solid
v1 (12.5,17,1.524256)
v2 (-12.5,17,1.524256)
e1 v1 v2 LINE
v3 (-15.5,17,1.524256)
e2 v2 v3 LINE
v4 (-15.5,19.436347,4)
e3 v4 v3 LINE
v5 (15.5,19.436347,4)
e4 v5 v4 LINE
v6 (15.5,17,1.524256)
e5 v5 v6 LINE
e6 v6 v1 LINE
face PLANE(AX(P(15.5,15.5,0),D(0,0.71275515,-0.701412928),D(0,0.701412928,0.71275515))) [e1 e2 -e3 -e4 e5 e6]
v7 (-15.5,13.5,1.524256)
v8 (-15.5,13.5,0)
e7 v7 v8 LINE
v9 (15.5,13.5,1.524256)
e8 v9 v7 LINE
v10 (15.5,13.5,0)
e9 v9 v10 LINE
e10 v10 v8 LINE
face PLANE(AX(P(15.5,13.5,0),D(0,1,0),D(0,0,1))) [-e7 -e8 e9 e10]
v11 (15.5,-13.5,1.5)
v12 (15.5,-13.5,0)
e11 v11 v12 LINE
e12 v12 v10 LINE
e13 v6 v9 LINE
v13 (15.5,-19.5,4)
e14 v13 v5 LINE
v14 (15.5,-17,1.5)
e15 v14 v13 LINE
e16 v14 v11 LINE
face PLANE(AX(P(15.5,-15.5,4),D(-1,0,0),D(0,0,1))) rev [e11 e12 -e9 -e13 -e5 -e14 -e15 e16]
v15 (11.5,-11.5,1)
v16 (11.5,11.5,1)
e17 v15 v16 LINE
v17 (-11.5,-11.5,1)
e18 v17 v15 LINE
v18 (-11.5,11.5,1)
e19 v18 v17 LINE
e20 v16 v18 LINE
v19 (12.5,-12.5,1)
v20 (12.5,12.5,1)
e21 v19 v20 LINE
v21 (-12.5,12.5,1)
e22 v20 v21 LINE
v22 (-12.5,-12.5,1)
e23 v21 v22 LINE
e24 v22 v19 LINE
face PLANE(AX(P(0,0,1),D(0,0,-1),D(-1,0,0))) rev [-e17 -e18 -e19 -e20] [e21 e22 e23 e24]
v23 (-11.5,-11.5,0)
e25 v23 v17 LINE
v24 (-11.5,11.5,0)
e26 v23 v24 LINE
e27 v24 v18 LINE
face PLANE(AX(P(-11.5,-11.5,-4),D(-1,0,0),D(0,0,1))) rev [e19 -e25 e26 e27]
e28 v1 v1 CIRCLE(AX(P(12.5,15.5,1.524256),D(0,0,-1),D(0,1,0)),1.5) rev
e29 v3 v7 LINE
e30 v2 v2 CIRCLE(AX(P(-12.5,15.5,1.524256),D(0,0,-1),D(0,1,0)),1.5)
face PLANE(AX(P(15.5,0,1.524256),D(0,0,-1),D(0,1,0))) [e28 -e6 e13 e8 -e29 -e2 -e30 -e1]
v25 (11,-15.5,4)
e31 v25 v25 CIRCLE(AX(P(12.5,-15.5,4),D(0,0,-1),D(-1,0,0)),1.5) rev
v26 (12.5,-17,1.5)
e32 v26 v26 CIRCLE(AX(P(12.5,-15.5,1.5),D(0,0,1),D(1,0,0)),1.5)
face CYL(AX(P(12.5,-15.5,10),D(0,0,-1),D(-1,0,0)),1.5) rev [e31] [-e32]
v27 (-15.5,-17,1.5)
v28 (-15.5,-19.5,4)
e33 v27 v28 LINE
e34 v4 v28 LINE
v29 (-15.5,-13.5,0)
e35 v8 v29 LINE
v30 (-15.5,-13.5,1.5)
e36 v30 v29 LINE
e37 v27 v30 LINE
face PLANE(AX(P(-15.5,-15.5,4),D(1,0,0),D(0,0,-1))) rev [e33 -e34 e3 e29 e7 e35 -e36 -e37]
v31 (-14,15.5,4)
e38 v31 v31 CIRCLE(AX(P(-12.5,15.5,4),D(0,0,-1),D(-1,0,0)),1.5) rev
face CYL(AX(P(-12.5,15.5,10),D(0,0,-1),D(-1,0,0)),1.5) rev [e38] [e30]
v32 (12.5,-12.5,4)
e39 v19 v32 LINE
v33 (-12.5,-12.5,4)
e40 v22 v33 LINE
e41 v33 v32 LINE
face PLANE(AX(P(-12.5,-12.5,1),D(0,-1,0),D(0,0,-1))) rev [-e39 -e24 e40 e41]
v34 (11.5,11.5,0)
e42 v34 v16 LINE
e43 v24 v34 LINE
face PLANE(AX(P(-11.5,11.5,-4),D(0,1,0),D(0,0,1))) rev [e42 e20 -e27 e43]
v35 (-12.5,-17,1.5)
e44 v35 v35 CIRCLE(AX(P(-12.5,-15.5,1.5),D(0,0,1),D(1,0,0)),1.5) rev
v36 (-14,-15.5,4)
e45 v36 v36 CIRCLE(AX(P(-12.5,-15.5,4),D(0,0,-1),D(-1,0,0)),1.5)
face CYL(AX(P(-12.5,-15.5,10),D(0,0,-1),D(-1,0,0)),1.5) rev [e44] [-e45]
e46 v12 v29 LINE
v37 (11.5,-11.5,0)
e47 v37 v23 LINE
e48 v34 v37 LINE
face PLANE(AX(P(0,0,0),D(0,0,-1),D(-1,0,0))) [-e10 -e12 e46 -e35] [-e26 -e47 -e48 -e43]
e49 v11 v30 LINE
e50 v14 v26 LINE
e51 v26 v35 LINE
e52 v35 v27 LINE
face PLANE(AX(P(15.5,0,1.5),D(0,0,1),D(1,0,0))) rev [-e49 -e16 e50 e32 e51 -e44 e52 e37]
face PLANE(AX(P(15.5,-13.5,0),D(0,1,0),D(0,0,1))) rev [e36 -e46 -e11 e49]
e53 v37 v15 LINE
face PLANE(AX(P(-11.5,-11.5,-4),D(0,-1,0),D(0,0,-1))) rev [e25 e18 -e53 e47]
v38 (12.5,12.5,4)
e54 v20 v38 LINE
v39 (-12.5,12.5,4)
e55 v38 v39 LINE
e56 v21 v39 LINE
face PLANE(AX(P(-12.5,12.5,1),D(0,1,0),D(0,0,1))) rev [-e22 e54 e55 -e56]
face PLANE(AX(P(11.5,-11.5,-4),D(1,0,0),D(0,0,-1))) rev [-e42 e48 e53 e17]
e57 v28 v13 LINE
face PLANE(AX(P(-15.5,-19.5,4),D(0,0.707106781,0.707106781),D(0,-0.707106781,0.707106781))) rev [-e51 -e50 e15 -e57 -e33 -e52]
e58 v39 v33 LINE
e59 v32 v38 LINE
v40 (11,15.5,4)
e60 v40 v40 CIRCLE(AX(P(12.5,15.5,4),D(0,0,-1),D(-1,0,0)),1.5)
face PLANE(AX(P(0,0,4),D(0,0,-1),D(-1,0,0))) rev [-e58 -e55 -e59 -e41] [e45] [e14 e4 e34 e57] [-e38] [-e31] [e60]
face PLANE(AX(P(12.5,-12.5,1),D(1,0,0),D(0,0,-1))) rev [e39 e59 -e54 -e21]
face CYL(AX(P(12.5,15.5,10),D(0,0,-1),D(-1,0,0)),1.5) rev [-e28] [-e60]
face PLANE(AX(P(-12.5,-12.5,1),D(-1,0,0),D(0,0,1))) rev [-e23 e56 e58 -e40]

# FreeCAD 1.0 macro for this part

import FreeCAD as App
import Part
import Sketcher
Q = App.Units.Quantity

doc = App.newDocument("Part")
body = doc.addObject("PartDesign::Body", "Body")

sketch1 = body.newObject("Sketcher::SketchObject", "Sketch")
sketch1.AttachmentSupport = (doc.getObject("XY_Plane"), [""])
sketch1.MapMode = "FlatFace"
sketch1.addGeometry(Part.LineSegment(App.Vector(-16, 16, 0), App.Vector(-16, -16, 0)), False)
sketch1.addGeometry(Part.LineSegment(App.Vector(-16, -16, 0), App.Vector(16, -16, 0)), False)
sketch1.addGeometry(Part.LineSegment(App.Vector(16, -16, 0), App.Vector(16, 16, 0)), False)
sketch1.addGeometry(Part.LineSegment(App.Vector(16, 16, 0), App.Vector(-16, 16, 0)), False)
sketch1.addConstraint(Sketcher.Constraint("Coincident", 0, 2, 1, 1))
sketch1.addConstraint(Sketcher.Constraint("Coincident", 1, 2, 2, 1))
sketch1.addConstraint(Sketcher.Constraint("Coincident", 2, 2, 3, 1))
sketch1.addConstraint(Sketcher.Constraint("Coincident", 3, 2, 0, 1))
sketch1.addConstraint(Sketcher.Constraint("Vertical", 0))
sketch1.addConstraint(Sketcher.Constraint("Horizontal", 1))
sketch1.addConstraint(Sketcher.Constraint("Vertical", 2))
sketch1.addConstraint(Sketcher.Constraint("Horizontal", 3))
sketch1.addConstraint(Sketcher.Constraint("Symmetric", 0, 2, 2, 2, -1, 1))
sketch1.addConstraint(Sketcher.Constraint("Equal", 3, 0))
sketch1.addConstraint(Sketcher.Constraint("DistanceX", 1, 1, 1, 2, Q("31 mm")))
pad1 = body.newObject("PartDesign::Pad", "Pad")
pad1.Profile = sketch1
pad1.Length = 4

sketch2 = body.newObject("Sketcher::SketchObject", "Sketch001")
sketch2.AttachmentSupport = (doc.getObject("XY_Plane"), [""])
sketch2.MapMode = "FlatFace"
sketch2.AttachmentOffset = App.Placement(App.Vector(0, 0, 4), App.Rotation())
sketch2.addGeometry(Part.LineSegment(App.Vector(-12, 12, 0), App.Vector(-12, -12, 0)), False)
sketch2.addGeometry(Part.LineSegment(App.Vector(-12, -12, 0), App.Vector(12, -12, 0)), False)
sketch2.addGeometry(Part.LineSegment(App.Vector(12, -12, 0), App.Vector(12, 12, 0)), False)
sketch2.addGeometry(Part.LineSegment(App.Vector(12, 12, 0), App.Vector(-12, 12, 0)), False)
sketch2.addConstraint(Sketcher.Constraint("Coincident", 0, 2, 1, 1))
sketch2.addConstraint(Sketcher.Constraint("Coincident", 1, 2, 2, 1))
sketch2.addConstraint(Sketcher.Constraint("Coincident", 2, 2, 3, 1))
sketch2.addConstraint(Sketcher.Constraint("Coincident", 3, 2, 0, 1))
sketch2.addConstraint(Sketcher.Constraint("Vertical", 0))
sketch2.addConstraint(Sketcher.Constraint("Horizontal", 1))
sketch2.addConstraint(Sketcher.Constraint("Vertical", 2))
sketch2.addConstraint(Sketcher.Constraint("Horizontal", 3))
sketch2.addConstraint(Sketcher.Constraint("Symmetric", 0, 2, 2, 2, -1, 1))
sketch2.addConstraint(Sketcher.Constraint("Equal", 3, 0))
sketch2.addConstraint(Sketcher.Constraint("DistanceX", 1, 1, 1, 2, Q("25 mm")))
pocket1 = body.newObject("PartDesign::Pocket", "Pocket")
pocket1.Profile = sketch2
pocket1.Length = 3

sketch3 = body.newObject("Sketcher::SketchObject", "Sketch002")
sketch3.AttachmentSupport = (doc.getObject("XY_Plane"), [""])
sketch3.MapMode = "FlatFace"
sketch3.AttachmentOffset = App.Placement(App.Vector(0, 0, 1), App.Rotation())
sketch3.addGeometry(Part.LineSegment(App.Vector(-12, 12, 0), App.Vector(-12, -12, 0)), False)
sketch3.addGeometry(Part.LineSegment(App.Vector(-12, -12, 0), App.Vector(12, -12, 0)), False)
sketch3.addGeometry(Part.LineSegment(App.Vector(12, -12, 0), App.Vector(12, 12, 0)), False)
sketch3.addGeometry(Part.LineSegment(App.Vector(12, 12, 0), App.Vector(-12, 12, 0)), False)
sketch3.addConstraint(Sketcher.Constraint("Coincident", 0, 2, 1, 1))
sketch3.addConstraint(Sketcher.Constraint("Coincident", 1, 2, 2, 1))
sketch3.addConstraint(Sketcher.Constraint("Coincident", 2, 2, 3, 1))
sketch3.addConstraint(Sketcher.Constraint("Coincident", 3, 2, 0, 1))
sketch3.addConstraint(Sketcher.Constraint("Vertical", 0))
sketch3.addConstraint(Sketcher.Constraint("Horizontal", 1))
sketch3.addConstraint(Sketcher.Constraint("Vertical", 2))
sketch3.addConstraint(Sketcher.Constraint("Horizontal", 3))
sketch3.addConstraint(Sketcher.Constraint("Symmetric", 0, 2, 2, 2, -1, 1))
sketch3.addConstraint(Sketcher.Constraint("Equal", 3, 0))
sketch3.addConstraint(Sketcher.Constraint("DistanceX", 1, 1, 1, 2, Q("23 mm")))
pocket2 = body.newObject("PartDesign::Pocket", "Pocket001")
pocket2.Profile = sketch3
pocket2.Length = 5

sketch4 = body.newObject("Sketcher::SketchObject", "Sketch003")
sketch4.AttachmentSupport = (doc.getObject("YZ_Plane"), [""])
sketch4.MapMode = "FlatFace"
sketch4.AttachmentOffset = App.Placement(App.Vector(0, 0, -15.5), App.Rotation())
sketch4.addGeometry(Part.LineSegment(App.Vector(-19.5, 4, 0), App.Vector(-15.5, 4, 0)), False)
sketch4.addGeometry(Part.LineSegment(App.Vector(-15.5, 4, 0), App.Vector(-15.5, 0, 0)), False)
sketch4.addGeometry(Part.LineSegment(App.Vector(-15.5, 0, 0), App.Vector(-19.5, 4, 0)), False)
sketch4.addConstraint(Sketcher.Constraint("Coincident", 0, 2, 1, 1))
sketch4.addConstraint(Sketcher.Constraint("Coincident", 1, 2, 2, 1))
sketch4.addConstraint(Sketcher.Constraint("Coincident", 2, 2, 0, 1))
sketch4.addConstraint(Sketcher.Constraint("Horizontal", 0))
sketch4.addConstraint(Sketcher.Constraint("Vertical", 1))
sketch4.addConstraint(Sketcher.Constraint("PointOnObject", 1, 2, -1))
sketch4.addConstraint(Sketcher.Constraint("Equal", 0, 1))
sketch4.addConstraint(Sketcher.Constraint("DistanceX", 0, 1, 0, 2, Q("4 mm")))
sketch4.addConstraint(Sketcher.Constraint("DistanceX", 0, 2, -1, 1, Q("15.5 mm")))

sketch5 = body.newObject("Sketcher::SketchObject", "Sketch004")
sketch5.AttachmentSupport = (doc.getObject("XY_Plane"), [""])
sketch5.MapMode = "FlatFace"
sketch5.AttachmentOffset = App.Placement(App.Vector(0, 0, 4), App.Rotation())
sketch5.addGeometry(Part.LineSegment(App.Vector(-16, -16, 0), App.Vector(16, -16, 0)), False)
sketch5.addConstraint(Sketcher.Constraint("Horizontal", 0))
sketch5.addConstraint(Sketcher.Constraint("DistanceX", 0, 1, 0, 2, Q("31 mm")))
sketch5.addConstraint(Sketcher.Constraint("DistanceX", 0, 1, -1, 1, Q("15.5 mm")))
sketch5.addConstraint(Sketcher.Constraint("DistanceY", 0, 1, -1, 1, Q("15.5 mm")))
doc.recompute()

additivepipe = body.newObject("PartDesign::AdditivePipe", "AdditivePipe")
additivepipe.Profile = sketch4
additivepipe.Spine = (sketch5, ["Edge1"])

sketch6 = body.newObject("Sketcher::SketchObject", "Sketch005")
sketch6.AttachmentSupport = (doc.getObject("YZ_Plane"), [""])
sketch6.MapMode = "FlatFace"
sketch6.AttachmentOffset = App.Placement(App.Vector(0, 0, -15.5), App.Rotation())
sketch6.addGeometry(Part.LineSegment(App.Vector(19.4, 4, 0), App.Vector(15.5, 0, 0)), False)
sketch6.addGeometry(Part.LineSegment(App.Vector(15.5, 0, 0), App.Vector(15.5, 4, 0)), False)
sketch6.addGeometry(Part.LineSegment(App.Vector(15.5, 4, 0), App.Vector(19.4, 4, 0)), False)
sketch6.addConstraint(Sketcher.Constraint("Coincident", 0, 2, 1, 1))
sketch6.addConstraint(Sketcher.Constraint("Coincident", 1, 2, 2, 1))
sketch6.addConstraint(Sketcher.Constraint("Coincident", 2, 2, 0, 1))
sketch6.addConstraint(Sketcher.Constraint("Vertical", 1))
sketch6.addConstraint(Sketcher.Constraint("Horizontal", 2))
sketch6.addConstraint(Sketcher.Constraint("PointOnObject", 0, 2, -1))
sketch6.addConstraint(Sketcher.Constraint("DistanceY", 1, 1, 1, 2, Q("4 mm")))
sketch6.addConstraint(Sketcher.Constraint("DistanceX", -1, 1, 0, 2, Q("15.5 mm")))
sketch6.addConstraint(Sketcher.Constraint("DistanceX", 2, 1, 2, 2, Q("3.936347 mm")))

sketch7 = body.newObject("Sketcher::SketchObject", "Sketch006")
sketch7.AttachmentSupport = (doc.getObject("XY_Plane"), [""])
sketch7.MapMode = "FlatFace"
sketch7.addGeometry(Part.LineSegment(App.Vector(16, 16, 0), App.Vector(-16, 16, 0)), False)
sketch7.addConstraint(Sketcher.Constraint("Horizontal", 0))
sketch7.addConstraint(Sketcher.Constraint("DistanceX", 0, 2, 0, 1, Q("31 mm")))
sketch7.addConstraint(Sketcher.Constraint("DistanceX", -1, 1, 0, 1, Q("15.5 mm")))
sketch7.addConstraint(Sketcher.Constraint("DistanceY", -1, 1, 0, 1, Q("15.5 mm")))
doc.recompute()

additivepipe2 = body.newObject("PartDesign::AdditivePipe", "AdditivePipe001")
additivepipe2.Profile = sketch6
additivepipe2.Spine = (sketch7, ["Edge1"])

sketch8 = body.newObject("Sketcher::SketchObject", "Sketch007")
sketch8.AttachmentSupport = (doc.getObject("XY_Plane"), [""])
sketch8.MapMode = "FlatFace"
sketch8.addGeometry(Part.Circle(App.Vector(12.5, 15.5, 0), App.Vector(0, 0, 1), 1.5), False)
sketch8.addConstraint(Sketcher.Constraint("Diameter", 0, Q("3 mm")))
sketch8.addConstraint(Sketcher.Constraint("DistanceX", -1, 1, 0, 3, Q("12.5 mm")))
sketch8.addConstraint(Sketcher.Constraint("DistanceY", -1, 1, 0, 3, Q("15.5 mm")))
pocket3 = body.newObject("PartDesign::Pocket", "Pocket002")
pocket3.Profile = sketch8
pocket3.Length = 10
pocket3.Reversed = True
doc.recompute()

mirrored = body.newObject("PartDesign::Mirrored", "Mirrored")
mirrored.Originals = [pocket3]
mirrored.MirrorPlane = (doc.getObject("YZ_Plane"), [""])
body.Tip = mirrored
doc.recompute()

mirrored2 = body.newObject("PartDesign::Mirrored", "Mirrored001")
mirrored2.Originals = [pocket3]
mirrored2.MirrorPlane = (doc.getObject("XZ_Plane"), [""])
body.Tip = mirrored2

sketch9 = body.newObject("Sketcher::SketchObject", "Sketch008")
sketch9.AttachmentSupport = (doc.getObject("XY_Plane"), [""])
sketch9.MapMode = "FlatFace"
sketch9.addGeometry(Part.Circle(App.Vector(-12.5, -15.5, 0), App.Vector(0, 0, 1), 1.5), False)
sketch9.addConstraint(Sketcher.Constraint("Diameter", 0, Q("3 mm")))
sketch9.addConstraint(Sketcher.Constraint("DistanceX", 0, 3, -1, 1, Q("12.5 mm")))
sketch9.addConstraint(Sketcher.Constraint("DistanceY", 0, 3, -1, 1, Q("15.5 mm")))
pocket4 = body.newObject("PartDesign::Pocket", "Pocket003")
pocket4.Profile = sketch9
pocket4.Length = 10
pocket4.Reversed = True

sketch10 = body.newObject("Sketcher::SketchObject", "Sketch009")
sketch10.AttachmentSupport = (doc.getObject("YZ_Plane"), [""])
sketch10.MapMode = "FlatFace"
sketch10.AttachmentOffset = App.Placement(App.Vector(0, 0, -15.5), App.Rotation())
sketch10.addGeometry(Part.LineSegment(App.Vector(-15.5, 0, 0), App.Vector(-17, 1.5, 0)), False)
sketch10.addGeometry(Part.LineSegment(App.Vector(-17, 1.5, 0), App.Vector(-13.5, 1.5, 0)), False)
sketch10.addGeometry(Part.LineSegment(App.Vector(-13.5, 1.5, 0), App.Vector(-13.5, 0, 0)), False)
sketch10.addGeometry(Part.LineSegment(App.Vector(-13.5, 0, 0), App.Vector(-15.5, 0, 0)), False)
sketch10.addGeometry(Part.LineSegment(App.Vector(17, 1.5, 0), App.Vector(15.5, 0, 0)), False)
sketch10.addGeometry(Part.LineSegment(App.Vector(15.5, 0, 0), App.Vector(13.5, 0, 0)), False)
sketch10.addGeometry(Part.LineSegment(App.Vector(13.5, 0, 0), App.Vector(13.5, 1.5, 0)), False)
sketch10.addGeometry(Part.LineSegment(App.Vector(13.5, 1.5, 0), App.Vector(17, 1.5, 0)), False)
sketch10.addConstraint(Sketcher.Constraint("Coincident", 0, 2, 1, 1))
sketch10.addConstraint(Sketcher.Constraint("Coincident", 1, 2, 2, 1))
sketch10.addConstraint(Sketcher.Constraint("Coincident", 2, 2, 3, 1))
sketch10.addConstraint(Sketcher.Constraint("Coincident", 3, 2, 0, 1))
sketch10.addConstraint(Sketcher.Constraint("Coincident", 4, 2, 5, 1))
sketch10.addConstraint(Sketcher.Constraint("Coincident", 5, 2, 6, 1))
sketch10.addConstraint(Sketcher.Constraint("Coincident", 6, 2, 7, 1))
sketch10.addConstraint(Sketcher.Constraint("Coincident", 7, 2, 4, 1))
sketch10.addConstraint(Sketcher.Constraint("Horizontal", 1))
sketch10.addConstraint(Sketcher.Constraint("Vertical", 2))
sketch10.addConstraint(Sketcher.Constraint("Horizontal", 3))
sketch10.addConstraint(Sketcher.Constraint("Horizontal", 5))
sketch10.addConstraint(Sketcher.Constraint("Vertical", 6))
sketch10.addConstraint(Sketcher.Constraint("Horizontal", 7))
sketch10.addConstraint(Sketcher.Constraint("Symmetric", 3, 2, 4, 2, -1, 1))
sketch10.addConstraint(Sketcher.Constraint("Symmetric", 2, 2, 5, 2, -2))
sketch10.addConstraint(Sketcher.Constraint("Equal", 1, 7))
sketch10.addConstraint(Sketcher.Constraint("DistanceX", 3, 2, 3, 1, Q("2 mm")))
sketch10.addConstraint(Sketcher.Constraint("Angle", 0, Q("135 deg")))
sketch10.addConstraint(Sketcher.Constraint("DistanceX", 1, 1, 1, 2, Q("3.5 mm")))
sketch10.addConstraint(Sketcher.Constraint("DistanceX", 0, 2, -1, 1, Q("17 mm")))
sketch10.addConstraint(Sketcher.Constraint("Distance", 4, Q("2.138541 mm")))
pocket5 = body.newObject("PartDesign::Pocket", "Pocket004")
pocket5.Profile = sketch10
pocket5.Type = "ThroughAll"
pocket5.Reversed = True

doc.recompute()
